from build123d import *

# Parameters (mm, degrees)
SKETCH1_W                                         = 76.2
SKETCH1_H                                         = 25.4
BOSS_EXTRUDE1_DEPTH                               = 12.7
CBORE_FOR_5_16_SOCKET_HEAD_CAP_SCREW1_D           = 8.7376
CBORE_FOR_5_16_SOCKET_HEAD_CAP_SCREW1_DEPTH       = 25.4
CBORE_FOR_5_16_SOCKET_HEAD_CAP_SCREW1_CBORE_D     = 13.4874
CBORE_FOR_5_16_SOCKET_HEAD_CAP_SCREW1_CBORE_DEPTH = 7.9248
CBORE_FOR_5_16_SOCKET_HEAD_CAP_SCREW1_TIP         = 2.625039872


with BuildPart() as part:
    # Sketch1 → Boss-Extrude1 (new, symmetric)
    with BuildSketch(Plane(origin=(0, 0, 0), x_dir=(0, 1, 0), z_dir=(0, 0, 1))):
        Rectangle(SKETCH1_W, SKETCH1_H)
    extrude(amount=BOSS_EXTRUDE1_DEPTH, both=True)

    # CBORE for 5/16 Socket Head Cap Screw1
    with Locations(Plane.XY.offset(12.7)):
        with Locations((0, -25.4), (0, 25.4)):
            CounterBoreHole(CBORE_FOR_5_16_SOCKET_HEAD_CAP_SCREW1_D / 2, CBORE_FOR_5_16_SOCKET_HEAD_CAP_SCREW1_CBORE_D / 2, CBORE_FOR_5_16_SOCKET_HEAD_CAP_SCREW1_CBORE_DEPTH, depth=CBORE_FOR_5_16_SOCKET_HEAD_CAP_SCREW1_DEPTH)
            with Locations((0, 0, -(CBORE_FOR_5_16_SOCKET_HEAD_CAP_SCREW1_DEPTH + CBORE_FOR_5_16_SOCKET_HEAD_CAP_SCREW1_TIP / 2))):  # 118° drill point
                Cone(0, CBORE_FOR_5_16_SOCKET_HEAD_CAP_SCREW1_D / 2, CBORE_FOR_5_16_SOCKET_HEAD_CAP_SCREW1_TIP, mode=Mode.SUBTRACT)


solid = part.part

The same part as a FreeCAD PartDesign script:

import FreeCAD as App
import Part
import Sketcher
from FreeCAD import Vector
Q = App.Units.Quantity


def add_polygon(sketch, points):
    """Adds a closed chain of lines whose ends are joined by coincident constraints."""
    first, n = sketch.GeometryCount, len(points)
    for a, b in zip(points, points[1:] + points[:1]):
        sketch.addGeometry(Part.LineSegment(App.Vector(*a, 0), App.Vector(*b, 0)), False)
    for i in range(n):
        sketch.addConstraint(Sketcher.Constraint("Coincident", first + i, 2, first + (i + 1) % n, 1))

doc = App.newDocument("Part")
body = doc.addObject("PartDesign::Body", "Body")

# Sketch on XY plane
sketch1 = body.newObject("Sketcher::SketchObject", "Sketch")
sketch1.AttachmentSupport = (doc.getObject("XY_Plane"), [""])
sketch1.MapMode = "FlatFace"
add_polygon(sketch1, [(-13, -38), (13, -38), (13, 38), (-13, 38)])  # lines 0-3
sketch1.addConstraint([
    Sketcher.Constraint("Horizontal", 0),
    Sketcher.Constraint("Vertical", 1),
    Sketcher.Constraint("Horizontal", 2),
    Sketcher.Constraint("Vertical", 3),
    Sketcher.Constraint("Symmetric", 0, 2, 2, 2, -1, 1),
    Sketcher.Constraint("DistanceX", 0, 1, 0, 2, Q("1 in")),
    Sketcher.Constraint("DistanceY", 1, 1, 1, 2, Q("3 in")),
])
pad1 = body.newObject("PartDesign::Pad", "Pad")
pad1.Profile = sketch1
pad1.Length = Q("1 in")
pad1.Midplane = True

# Sketch on XY plane
sketch2 = body.newObject("Sketcher::SketchObject", "Sketch001")
sketch2.AttachmentSupport = (doc.getObject("XY_Plane"), [""])
sketch2.MapMode = "FlatFace"
sketch2.AttachmentOffset = App.Placement(Vector(0, 0, 0.5 * 25.4), App.Rotation())
sketch2.addGeometry([
    Part.Circle(Vector(0, -25.4, 0), Vector(0, 0, 1), 4.4),
    Part.Circle(Vector(0, 25.4, 0), Vector(0, 0, 1), 4.4),
], False)
sketch2.addConstraint([
    Sketcher.Constraint("Equal", 0, 1),
    Sketcher.Constraint("Symmetric", 0, 3, 1, 3, -1, 1),
    Sketcher.Constraint("PointOnObject", 0, 3, -2),
    Sketcher.Constraint("Diameter", 0, Q("0.344 in")),
    Sketcher.Constraint("DistanceY", 0, 3, -1, 1, Q("1 in")),
])
doc.recompute()
hole = body.newObject("PartDesign::Hole", "Hole")
hole.Profile = sketch2
hole.ThreadType = "None"
hole.Diameter = Q("0.344 in")
hole.DepthType = "Dimension"
hole.Depth = Q("1 in")
hole.DrillPoint = "Angled"
hole.DrillPointAngle = 118
hole.HoleCutType = "Counterbore"
hole.HoleCutDiameter = Q("0.531 in")
hole.HoleCutDepth = Q("0.312 in")

doc.recompute()
